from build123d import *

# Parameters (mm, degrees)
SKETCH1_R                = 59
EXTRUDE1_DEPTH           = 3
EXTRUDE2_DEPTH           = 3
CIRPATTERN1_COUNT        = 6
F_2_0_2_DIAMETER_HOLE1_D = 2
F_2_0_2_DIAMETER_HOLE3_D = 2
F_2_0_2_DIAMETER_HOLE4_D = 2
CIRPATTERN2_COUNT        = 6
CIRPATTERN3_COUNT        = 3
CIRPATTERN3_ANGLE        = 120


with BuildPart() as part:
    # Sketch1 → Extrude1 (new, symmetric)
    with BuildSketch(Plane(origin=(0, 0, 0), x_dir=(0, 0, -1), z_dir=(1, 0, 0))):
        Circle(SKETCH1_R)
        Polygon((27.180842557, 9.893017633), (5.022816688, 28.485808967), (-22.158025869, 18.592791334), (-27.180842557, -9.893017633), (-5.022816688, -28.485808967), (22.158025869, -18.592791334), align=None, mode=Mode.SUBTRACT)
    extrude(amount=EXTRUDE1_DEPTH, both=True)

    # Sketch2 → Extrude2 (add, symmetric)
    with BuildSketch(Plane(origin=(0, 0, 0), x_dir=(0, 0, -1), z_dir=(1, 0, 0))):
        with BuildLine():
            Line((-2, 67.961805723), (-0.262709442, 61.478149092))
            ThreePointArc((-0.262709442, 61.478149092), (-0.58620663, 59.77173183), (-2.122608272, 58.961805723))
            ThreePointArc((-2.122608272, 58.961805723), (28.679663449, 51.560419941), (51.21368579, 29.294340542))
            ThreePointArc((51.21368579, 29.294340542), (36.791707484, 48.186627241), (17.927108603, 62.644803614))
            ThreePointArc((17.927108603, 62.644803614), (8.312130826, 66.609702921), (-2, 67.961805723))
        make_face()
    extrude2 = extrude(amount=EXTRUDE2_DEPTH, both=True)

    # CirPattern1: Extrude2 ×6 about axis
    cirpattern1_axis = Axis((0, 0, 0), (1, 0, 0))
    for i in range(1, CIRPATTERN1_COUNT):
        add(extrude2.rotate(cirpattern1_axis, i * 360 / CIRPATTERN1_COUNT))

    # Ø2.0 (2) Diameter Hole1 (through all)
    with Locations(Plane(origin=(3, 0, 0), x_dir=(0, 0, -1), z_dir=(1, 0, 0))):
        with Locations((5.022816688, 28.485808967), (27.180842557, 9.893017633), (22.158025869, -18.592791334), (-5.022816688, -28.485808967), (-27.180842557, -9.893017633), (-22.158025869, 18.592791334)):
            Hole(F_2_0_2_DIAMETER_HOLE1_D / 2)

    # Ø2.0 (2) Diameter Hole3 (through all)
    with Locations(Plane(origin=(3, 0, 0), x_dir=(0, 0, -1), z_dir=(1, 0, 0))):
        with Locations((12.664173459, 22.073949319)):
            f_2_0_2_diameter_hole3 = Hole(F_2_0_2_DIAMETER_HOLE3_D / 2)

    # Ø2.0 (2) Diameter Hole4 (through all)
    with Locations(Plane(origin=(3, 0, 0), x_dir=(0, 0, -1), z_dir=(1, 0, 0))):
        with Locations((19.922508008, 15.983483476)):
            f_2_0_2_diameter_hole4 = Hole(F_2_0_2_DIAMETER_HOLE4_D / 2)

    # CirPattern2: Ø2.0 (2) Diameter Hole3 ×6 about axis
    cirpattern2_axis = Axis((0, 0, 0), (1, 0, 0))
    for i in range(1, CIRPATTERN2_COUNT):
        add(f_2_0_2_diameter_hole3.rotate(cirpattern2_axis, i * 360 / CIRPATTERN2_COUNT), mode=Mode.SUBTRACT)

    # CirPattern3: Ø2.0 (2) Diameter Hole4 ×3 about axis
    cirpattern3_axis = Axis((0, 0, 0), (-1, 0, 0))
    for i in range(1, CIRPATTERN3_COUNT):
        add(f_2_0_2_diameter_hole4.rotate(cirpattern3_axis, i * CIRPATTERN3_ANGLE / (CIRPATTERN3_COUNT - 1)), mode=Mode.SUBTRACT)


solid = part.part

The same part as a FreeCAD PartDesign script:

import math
import FreeCAD as App
import Part
import Sketcher

V = App.Vector
Q = App.Units.Quantity


def add_polygon(sketch, points):
    """Adds a closed chain of lines whose ends are joined by coincident constraints."""
    first, n = sketch.GeometryCount, len(points)
    for a, b in zip(points, points[1:] + points[:1]):
        sketch.addGeometry(Part.LineSegment(App.Vector(*a, 0), App.Vector(*b, 0)), False)
    for i in range(n):
        sketch.addConstraint(Sketcher.Constraint("Coincident", first + i, 2, first + (i + 1) % n, 1))

doc = App.newDocument("Part")
body = doc.addObject("PartDesign::Body", "Body")

# Sketch on YZ plane
sketch1 = body.newObject("Sketcher::SketchObject", "Sketch")
sketch1.AttachmentSupport = (doc.getObject("YZ_Plane"), [""])
sketch1.MapMode = "FlatFace"
sketch1.addGeometry(Part.Circle(V(0, 0, 0), V(0, 0, 1), 59), False)  # 0
add_polygon(sketch1, [(28, -5), (10, -27), (-19, -22), (-28, 5), (-10, 27), (19, 22)])  # lines 1-6
sketch1.addConstraint(Sketcher.Constraint("Coincident", 0, 3, -1, 1))
sketch1.addConstraint(Sketcher.Constraint("Symmetric", 1, 2, 4, 2, -1, 1))
sketch1.addConstraint(Sketcher.Constraint("Symmetric", 2, 2, 5, 2, -1, 1))
sketch1.addConstraint(Sketcher.Constraint("Symmetric", 3, 2, 6, 2, -1, 1))
sketch1.addConstraint(Sketcher.Constraint("Equal", 1, 2))
sketch1.addConstraint(Sketcher.Constraint("Equal", 2, 3))
sketch1.addConstraint(Sketcher.Constraint("Diameter", 0, Q("118 mm")))
sketch1.addConstraint(Sketcher.Constraint("Angle", 1, Q("-130 deg")))
sketch1.addConstraint(Sketcher.Constraint("Angle", 2, Q("170 deg")))
sketch1.addConstraint(Sketcher.Constraint("Angle", 3, Q("110 deg")))
sketch1.addConstraint(Sketcher.Constraint("DistanceX", 3, 2, 5, 2, Q("47.0786 mm")))
pad1 = body.newObject("PartDesign::Pad", "Pad")
pad1.Profile = sketch1
pad1.Length = 6
pad1.Midplane = True

# Sketch on YZ plane
sketch2 = body.newObject("Sketcher::SketchObject", "Sketch001")
sketch2.AttachmentSupport = (doc.getObject("YZ_Plane"), [""])
sketch2.MapMode = "FlatFace"
sketch2.addGeometry(Part.LineSegment(V(68, 2, 0), V(61.5, 0.3, 0)), False)
sketch2.addGeometry(Part.ArcOfCircle(Part.Circle(V(61, 2.2, 0), V(0, 0, 1), 2), math.radians(-178), math.radians(-75)), False)
sketch2.addGeometry(Part.ArcOfCircle(Part.Circle(V(0, 0, 0), V(0, 0, 1), 59), math.radians(-60), math.radians(2)), False)
sketch2.addGeometry(Part.ArcOfCircle(Part.Circle(V(-15.4, 26.9, 0), V(0, 0, 1), 90), math.radians(-60), math.radians(-30)), False)
sketch2.addGeometry(Part.ArcOfCircle(Part.Circle(V(28, 2, 0), V(0, 0, 1), 40), math.radians(-30), math.radians(0)), False)
sketch2.addConstraint(Sketcher.Constraint("Tangent", 0, 2, 1, 2))
sketch2.addConstraint(Sketcher.Constraint("Tangent", 1, 1, 2, 2))
sketch2.addConstraint(Sketcher.Constraint("Tangent", 2, 1, 3, 1))
sketch2.addConstraint(Sketcher.Constraint("Tangent", 3, 2, 4, 1))
sketch2.addConstraint(Sketcher.Constraint("Coincident", 4, 2, 0, 1))
sketch2.addConstraint(Sketcher.Constraint("Coincident", 2, 3, -1, 1))
sketch2.addConstraint(Sketcher.Constraint("Radius", 1, Q("2 mm")))
sketch2.addConstraint(Sketcher.Constraint("Radius", 2, Q("59 mm")))
sketch2.addConstraint(Sketcher.Constraint("Radius", 3, Q("90 mm")))
sketch2.addConstraint(Sketcher.Constraint("Radius", 4, Q("40 mm")))
sketch2.addConstraint(Sketcher.Constraint("Angle", 0, Q("-165 deg")))
sketch2.addConstraint(Sketcher.Constraint("DistanceY", -1, 1, 4, 3, Q("2 mm")))
sketch2.addConstraint(Sketcher.Constraint("DistanceY", -1, 1, 4, 2, Q("2 mm")))
sketch2.addConstraint(Sketcher.Constraint("DistanceX", 4, 3, 1, 1, Q("31 mm")))
pad2 = body.newObject("PartDesign::Pad", "Pad001")
pad2.Profile = sketch2
pad2.Length = 6
pad2.Midplane = True
doc.recompute()

polarpattern = body.newObject("PartDesign::PolarPattern", "PolarPattern")
polarpattern.Originals = [pad2]
polarpattern.Axis = (doc.getObject("X_Axis"), [""])
polarpattern.Angle = 360
polarpattern.Occurrences = 6
body.Tip = polarpattern

# Sketch on YZ plane
sketch3 = body.newObject("Sketcher::SketchObject", "Sketch002")
sketch3.AttachmentSupport = (doc.getObject("YZ_Plane"), [""])
sketch3.MapMode = "FlatFace"
sketch3.AttachmentOffset = App.Placement(V(0, 0, 3), App.Rotation())
sketch3.addGeometry(Part.Circle(V(28.5, -5, 0), V(0, 0, 1), 1), False)
sketch3.addGeometry(Part.Circle(V(9.9, -27.2, 0), V(0, 0, 1), 1), False)
sketch3.addGeometry(Part.Circle(V(-18.6, -22.2, 0), V(0, 0, 1), 1), False)
sketch3.addGeometry(Part.Circle(V(-28.5, 5, 0), V(0, 0, 1), 1), False)
sketch3.addGeometry(Part.Circle(V(-9.9, 27.2, 0), V(0, 0, 1), 1), False)
sketch3.addGeometry(Part.Circle(V(18.6, 22.2, 0), V(0, 0, 1), 1), False)
sketch3.addConstraint(Sketcher.Constraint("Equal", 0, 1))
sketch3.addConstraint(Sketcher.Constraint("Equal", 1, 2))
sketch3.addConstraint(Sketcher.Constraint("Equal", 2, 3))
sketch3.addConstraint(Sketcher.Constraint("Equal", 3, 4))
sketch3.addConstraint(Sketcher.Constraint("Equal", 4, 5))
sketch3.addConstraint(Sketcher.Constraint("Symmetric", 0, 3, 3, 3, -1, 1))
sketch3.addConstraint(Sketcher.Constraint("Symmetric", 1, 3, 4, 3, -1, 1))
sketch3.addConstraint(Sketcher.Constraint("Symmetric", 2, 3, 5, 3, -1, 1))
sketch3.addConstraint(Sketcher.Constraint("Diameter", 0, Q("2 mm")))
sketch3.addConstraint(Sketcher.Constraint("DistanceX", 2, 3, 0, 3, Q("47.0786 mm")))
sketch3.addConstraint(Sketcher.Constraint("DistanceX", -1, 1, 0, 3, Q("28.485809 mm")))
sketch3.addConstraint(Sketcher.Constraint("DistanceX", 1, 3, 0, 3, Q("18.592791 mm")))
sketch3.addConstraint(Sketcher.Constraint("DistanceY", 2, 3, 0, 3, Q("17.135209 mm")))
sketch3.addConstraint(Sketcher.Constraint("DistanceY", 1, 3, 3, 3, Q("32.203659 mm")))
sketch3.addConstraint(Sketcher.Constraint("DistanceY", 2, 3, 5, 3, Q("44.316052 mm")))
doc.recompute()
hole = body.newObject("PartDesign::Hole", "Hole")
hole.Profile = sketch3
hole.ThreadType = "None"
hole.Diameter = 2
hole.DepthType = "ThroughAll"

# Sketch on YZ plane
sketch4 = body.newObject("Sketcher::SketchObject", "Sketch003")
sketch4.AttachmentSupport = (doc.getObject("YZ_Plane"), [""])
sketch4.MapMode = "FlatFace"
sketch4.AttachmentOffset = App.Placement(V(0, 0, 3), App.Rotation())
sketch4.addGeometry(Part.Circle(V(22.1, -12.7, 0), V(0, 0, 1), 1), False)
sketch4.addConstraint(Sketcher.Constraint("Diameter", 0, Q("2 mm")))
sketch4.addConstraint(Sketcher.Constraint("DistanceX", -1, 1, 0, 3, Q("22.073949 mm")))
sketch4.addConstraint(Sketcher.Constraint("DistanceY", 0, 3, -1, 1, Q("12.664173 mm")))
doc.recompute()
hole2 = body.newObject("PartDesign::Hole", "Hole001")
hole2.Profile = sketch4
hole2.ThreadType = "None"
hole2.Diameter = 2
hole2.DepthType = "ThroughAll"

# Sketch on YZ plane
sketch5 = body.newObject("Sketcher::SketchObject", "Sketch004")
sketch5.AttachmentSupport = (doc.getObject("YZ_Plane"), [""])
sketch5.MapMode = "FlatFace"
sketch5.AttachmentOffset = App.Placement(V(0, 0, 3), App.Rotation())
sketch5.addGeometry(Part.Circle(V(16, -19.9, 0), V(0, 0, 1), 1), False)
sketch5.addConstraint(Sketcher.Constraint("Diameter", 0, Q("2 mm")))
sketch5.addConstraint(Sketcher.Constraint("DistanceY", 0, 3, -1, 1, Q("19.922508 mm")))
sketch5.addConstraint(Sketcher.Constraint("DistanceX", -1, 1, 0, 3, Q("15.983483 mm")))
doc.recompute()
hole3 = body.newObject("PartDesign::Hole", "Hole002")
hole3.Profile = sketch5
hole3.ThreadType = "None"
hole3.Diameter = 2
hole3.DepthType = "ThroughAll"
doc.recompute()

polarpattern2 = body.newObject("PartDesign::PolarPattern", "PolarPattern001")
polarpattern2.Originals = [hole2]
polarpattern2.Axis = (doc.getObject("X_Axis"), [""])
polarpattern2.Angle = 360
polarpattern2.Occurrences = 6
body.Tip = polarpattern2
doc.recompute()

polarpattern3 = body.newObject("PartDesign::PolarPattern", "PolarPattern002")
polarpattern3.Originals = [hole3]
polarpattern3.Axis = (doc.getObject("X_Axis"), [""])
polarpattern3.Angle = 120
polarpattern3.Occurrences = 3
polarpattern3.Reversed = True
body.Tip = polarpattern3

doc.recompute()
